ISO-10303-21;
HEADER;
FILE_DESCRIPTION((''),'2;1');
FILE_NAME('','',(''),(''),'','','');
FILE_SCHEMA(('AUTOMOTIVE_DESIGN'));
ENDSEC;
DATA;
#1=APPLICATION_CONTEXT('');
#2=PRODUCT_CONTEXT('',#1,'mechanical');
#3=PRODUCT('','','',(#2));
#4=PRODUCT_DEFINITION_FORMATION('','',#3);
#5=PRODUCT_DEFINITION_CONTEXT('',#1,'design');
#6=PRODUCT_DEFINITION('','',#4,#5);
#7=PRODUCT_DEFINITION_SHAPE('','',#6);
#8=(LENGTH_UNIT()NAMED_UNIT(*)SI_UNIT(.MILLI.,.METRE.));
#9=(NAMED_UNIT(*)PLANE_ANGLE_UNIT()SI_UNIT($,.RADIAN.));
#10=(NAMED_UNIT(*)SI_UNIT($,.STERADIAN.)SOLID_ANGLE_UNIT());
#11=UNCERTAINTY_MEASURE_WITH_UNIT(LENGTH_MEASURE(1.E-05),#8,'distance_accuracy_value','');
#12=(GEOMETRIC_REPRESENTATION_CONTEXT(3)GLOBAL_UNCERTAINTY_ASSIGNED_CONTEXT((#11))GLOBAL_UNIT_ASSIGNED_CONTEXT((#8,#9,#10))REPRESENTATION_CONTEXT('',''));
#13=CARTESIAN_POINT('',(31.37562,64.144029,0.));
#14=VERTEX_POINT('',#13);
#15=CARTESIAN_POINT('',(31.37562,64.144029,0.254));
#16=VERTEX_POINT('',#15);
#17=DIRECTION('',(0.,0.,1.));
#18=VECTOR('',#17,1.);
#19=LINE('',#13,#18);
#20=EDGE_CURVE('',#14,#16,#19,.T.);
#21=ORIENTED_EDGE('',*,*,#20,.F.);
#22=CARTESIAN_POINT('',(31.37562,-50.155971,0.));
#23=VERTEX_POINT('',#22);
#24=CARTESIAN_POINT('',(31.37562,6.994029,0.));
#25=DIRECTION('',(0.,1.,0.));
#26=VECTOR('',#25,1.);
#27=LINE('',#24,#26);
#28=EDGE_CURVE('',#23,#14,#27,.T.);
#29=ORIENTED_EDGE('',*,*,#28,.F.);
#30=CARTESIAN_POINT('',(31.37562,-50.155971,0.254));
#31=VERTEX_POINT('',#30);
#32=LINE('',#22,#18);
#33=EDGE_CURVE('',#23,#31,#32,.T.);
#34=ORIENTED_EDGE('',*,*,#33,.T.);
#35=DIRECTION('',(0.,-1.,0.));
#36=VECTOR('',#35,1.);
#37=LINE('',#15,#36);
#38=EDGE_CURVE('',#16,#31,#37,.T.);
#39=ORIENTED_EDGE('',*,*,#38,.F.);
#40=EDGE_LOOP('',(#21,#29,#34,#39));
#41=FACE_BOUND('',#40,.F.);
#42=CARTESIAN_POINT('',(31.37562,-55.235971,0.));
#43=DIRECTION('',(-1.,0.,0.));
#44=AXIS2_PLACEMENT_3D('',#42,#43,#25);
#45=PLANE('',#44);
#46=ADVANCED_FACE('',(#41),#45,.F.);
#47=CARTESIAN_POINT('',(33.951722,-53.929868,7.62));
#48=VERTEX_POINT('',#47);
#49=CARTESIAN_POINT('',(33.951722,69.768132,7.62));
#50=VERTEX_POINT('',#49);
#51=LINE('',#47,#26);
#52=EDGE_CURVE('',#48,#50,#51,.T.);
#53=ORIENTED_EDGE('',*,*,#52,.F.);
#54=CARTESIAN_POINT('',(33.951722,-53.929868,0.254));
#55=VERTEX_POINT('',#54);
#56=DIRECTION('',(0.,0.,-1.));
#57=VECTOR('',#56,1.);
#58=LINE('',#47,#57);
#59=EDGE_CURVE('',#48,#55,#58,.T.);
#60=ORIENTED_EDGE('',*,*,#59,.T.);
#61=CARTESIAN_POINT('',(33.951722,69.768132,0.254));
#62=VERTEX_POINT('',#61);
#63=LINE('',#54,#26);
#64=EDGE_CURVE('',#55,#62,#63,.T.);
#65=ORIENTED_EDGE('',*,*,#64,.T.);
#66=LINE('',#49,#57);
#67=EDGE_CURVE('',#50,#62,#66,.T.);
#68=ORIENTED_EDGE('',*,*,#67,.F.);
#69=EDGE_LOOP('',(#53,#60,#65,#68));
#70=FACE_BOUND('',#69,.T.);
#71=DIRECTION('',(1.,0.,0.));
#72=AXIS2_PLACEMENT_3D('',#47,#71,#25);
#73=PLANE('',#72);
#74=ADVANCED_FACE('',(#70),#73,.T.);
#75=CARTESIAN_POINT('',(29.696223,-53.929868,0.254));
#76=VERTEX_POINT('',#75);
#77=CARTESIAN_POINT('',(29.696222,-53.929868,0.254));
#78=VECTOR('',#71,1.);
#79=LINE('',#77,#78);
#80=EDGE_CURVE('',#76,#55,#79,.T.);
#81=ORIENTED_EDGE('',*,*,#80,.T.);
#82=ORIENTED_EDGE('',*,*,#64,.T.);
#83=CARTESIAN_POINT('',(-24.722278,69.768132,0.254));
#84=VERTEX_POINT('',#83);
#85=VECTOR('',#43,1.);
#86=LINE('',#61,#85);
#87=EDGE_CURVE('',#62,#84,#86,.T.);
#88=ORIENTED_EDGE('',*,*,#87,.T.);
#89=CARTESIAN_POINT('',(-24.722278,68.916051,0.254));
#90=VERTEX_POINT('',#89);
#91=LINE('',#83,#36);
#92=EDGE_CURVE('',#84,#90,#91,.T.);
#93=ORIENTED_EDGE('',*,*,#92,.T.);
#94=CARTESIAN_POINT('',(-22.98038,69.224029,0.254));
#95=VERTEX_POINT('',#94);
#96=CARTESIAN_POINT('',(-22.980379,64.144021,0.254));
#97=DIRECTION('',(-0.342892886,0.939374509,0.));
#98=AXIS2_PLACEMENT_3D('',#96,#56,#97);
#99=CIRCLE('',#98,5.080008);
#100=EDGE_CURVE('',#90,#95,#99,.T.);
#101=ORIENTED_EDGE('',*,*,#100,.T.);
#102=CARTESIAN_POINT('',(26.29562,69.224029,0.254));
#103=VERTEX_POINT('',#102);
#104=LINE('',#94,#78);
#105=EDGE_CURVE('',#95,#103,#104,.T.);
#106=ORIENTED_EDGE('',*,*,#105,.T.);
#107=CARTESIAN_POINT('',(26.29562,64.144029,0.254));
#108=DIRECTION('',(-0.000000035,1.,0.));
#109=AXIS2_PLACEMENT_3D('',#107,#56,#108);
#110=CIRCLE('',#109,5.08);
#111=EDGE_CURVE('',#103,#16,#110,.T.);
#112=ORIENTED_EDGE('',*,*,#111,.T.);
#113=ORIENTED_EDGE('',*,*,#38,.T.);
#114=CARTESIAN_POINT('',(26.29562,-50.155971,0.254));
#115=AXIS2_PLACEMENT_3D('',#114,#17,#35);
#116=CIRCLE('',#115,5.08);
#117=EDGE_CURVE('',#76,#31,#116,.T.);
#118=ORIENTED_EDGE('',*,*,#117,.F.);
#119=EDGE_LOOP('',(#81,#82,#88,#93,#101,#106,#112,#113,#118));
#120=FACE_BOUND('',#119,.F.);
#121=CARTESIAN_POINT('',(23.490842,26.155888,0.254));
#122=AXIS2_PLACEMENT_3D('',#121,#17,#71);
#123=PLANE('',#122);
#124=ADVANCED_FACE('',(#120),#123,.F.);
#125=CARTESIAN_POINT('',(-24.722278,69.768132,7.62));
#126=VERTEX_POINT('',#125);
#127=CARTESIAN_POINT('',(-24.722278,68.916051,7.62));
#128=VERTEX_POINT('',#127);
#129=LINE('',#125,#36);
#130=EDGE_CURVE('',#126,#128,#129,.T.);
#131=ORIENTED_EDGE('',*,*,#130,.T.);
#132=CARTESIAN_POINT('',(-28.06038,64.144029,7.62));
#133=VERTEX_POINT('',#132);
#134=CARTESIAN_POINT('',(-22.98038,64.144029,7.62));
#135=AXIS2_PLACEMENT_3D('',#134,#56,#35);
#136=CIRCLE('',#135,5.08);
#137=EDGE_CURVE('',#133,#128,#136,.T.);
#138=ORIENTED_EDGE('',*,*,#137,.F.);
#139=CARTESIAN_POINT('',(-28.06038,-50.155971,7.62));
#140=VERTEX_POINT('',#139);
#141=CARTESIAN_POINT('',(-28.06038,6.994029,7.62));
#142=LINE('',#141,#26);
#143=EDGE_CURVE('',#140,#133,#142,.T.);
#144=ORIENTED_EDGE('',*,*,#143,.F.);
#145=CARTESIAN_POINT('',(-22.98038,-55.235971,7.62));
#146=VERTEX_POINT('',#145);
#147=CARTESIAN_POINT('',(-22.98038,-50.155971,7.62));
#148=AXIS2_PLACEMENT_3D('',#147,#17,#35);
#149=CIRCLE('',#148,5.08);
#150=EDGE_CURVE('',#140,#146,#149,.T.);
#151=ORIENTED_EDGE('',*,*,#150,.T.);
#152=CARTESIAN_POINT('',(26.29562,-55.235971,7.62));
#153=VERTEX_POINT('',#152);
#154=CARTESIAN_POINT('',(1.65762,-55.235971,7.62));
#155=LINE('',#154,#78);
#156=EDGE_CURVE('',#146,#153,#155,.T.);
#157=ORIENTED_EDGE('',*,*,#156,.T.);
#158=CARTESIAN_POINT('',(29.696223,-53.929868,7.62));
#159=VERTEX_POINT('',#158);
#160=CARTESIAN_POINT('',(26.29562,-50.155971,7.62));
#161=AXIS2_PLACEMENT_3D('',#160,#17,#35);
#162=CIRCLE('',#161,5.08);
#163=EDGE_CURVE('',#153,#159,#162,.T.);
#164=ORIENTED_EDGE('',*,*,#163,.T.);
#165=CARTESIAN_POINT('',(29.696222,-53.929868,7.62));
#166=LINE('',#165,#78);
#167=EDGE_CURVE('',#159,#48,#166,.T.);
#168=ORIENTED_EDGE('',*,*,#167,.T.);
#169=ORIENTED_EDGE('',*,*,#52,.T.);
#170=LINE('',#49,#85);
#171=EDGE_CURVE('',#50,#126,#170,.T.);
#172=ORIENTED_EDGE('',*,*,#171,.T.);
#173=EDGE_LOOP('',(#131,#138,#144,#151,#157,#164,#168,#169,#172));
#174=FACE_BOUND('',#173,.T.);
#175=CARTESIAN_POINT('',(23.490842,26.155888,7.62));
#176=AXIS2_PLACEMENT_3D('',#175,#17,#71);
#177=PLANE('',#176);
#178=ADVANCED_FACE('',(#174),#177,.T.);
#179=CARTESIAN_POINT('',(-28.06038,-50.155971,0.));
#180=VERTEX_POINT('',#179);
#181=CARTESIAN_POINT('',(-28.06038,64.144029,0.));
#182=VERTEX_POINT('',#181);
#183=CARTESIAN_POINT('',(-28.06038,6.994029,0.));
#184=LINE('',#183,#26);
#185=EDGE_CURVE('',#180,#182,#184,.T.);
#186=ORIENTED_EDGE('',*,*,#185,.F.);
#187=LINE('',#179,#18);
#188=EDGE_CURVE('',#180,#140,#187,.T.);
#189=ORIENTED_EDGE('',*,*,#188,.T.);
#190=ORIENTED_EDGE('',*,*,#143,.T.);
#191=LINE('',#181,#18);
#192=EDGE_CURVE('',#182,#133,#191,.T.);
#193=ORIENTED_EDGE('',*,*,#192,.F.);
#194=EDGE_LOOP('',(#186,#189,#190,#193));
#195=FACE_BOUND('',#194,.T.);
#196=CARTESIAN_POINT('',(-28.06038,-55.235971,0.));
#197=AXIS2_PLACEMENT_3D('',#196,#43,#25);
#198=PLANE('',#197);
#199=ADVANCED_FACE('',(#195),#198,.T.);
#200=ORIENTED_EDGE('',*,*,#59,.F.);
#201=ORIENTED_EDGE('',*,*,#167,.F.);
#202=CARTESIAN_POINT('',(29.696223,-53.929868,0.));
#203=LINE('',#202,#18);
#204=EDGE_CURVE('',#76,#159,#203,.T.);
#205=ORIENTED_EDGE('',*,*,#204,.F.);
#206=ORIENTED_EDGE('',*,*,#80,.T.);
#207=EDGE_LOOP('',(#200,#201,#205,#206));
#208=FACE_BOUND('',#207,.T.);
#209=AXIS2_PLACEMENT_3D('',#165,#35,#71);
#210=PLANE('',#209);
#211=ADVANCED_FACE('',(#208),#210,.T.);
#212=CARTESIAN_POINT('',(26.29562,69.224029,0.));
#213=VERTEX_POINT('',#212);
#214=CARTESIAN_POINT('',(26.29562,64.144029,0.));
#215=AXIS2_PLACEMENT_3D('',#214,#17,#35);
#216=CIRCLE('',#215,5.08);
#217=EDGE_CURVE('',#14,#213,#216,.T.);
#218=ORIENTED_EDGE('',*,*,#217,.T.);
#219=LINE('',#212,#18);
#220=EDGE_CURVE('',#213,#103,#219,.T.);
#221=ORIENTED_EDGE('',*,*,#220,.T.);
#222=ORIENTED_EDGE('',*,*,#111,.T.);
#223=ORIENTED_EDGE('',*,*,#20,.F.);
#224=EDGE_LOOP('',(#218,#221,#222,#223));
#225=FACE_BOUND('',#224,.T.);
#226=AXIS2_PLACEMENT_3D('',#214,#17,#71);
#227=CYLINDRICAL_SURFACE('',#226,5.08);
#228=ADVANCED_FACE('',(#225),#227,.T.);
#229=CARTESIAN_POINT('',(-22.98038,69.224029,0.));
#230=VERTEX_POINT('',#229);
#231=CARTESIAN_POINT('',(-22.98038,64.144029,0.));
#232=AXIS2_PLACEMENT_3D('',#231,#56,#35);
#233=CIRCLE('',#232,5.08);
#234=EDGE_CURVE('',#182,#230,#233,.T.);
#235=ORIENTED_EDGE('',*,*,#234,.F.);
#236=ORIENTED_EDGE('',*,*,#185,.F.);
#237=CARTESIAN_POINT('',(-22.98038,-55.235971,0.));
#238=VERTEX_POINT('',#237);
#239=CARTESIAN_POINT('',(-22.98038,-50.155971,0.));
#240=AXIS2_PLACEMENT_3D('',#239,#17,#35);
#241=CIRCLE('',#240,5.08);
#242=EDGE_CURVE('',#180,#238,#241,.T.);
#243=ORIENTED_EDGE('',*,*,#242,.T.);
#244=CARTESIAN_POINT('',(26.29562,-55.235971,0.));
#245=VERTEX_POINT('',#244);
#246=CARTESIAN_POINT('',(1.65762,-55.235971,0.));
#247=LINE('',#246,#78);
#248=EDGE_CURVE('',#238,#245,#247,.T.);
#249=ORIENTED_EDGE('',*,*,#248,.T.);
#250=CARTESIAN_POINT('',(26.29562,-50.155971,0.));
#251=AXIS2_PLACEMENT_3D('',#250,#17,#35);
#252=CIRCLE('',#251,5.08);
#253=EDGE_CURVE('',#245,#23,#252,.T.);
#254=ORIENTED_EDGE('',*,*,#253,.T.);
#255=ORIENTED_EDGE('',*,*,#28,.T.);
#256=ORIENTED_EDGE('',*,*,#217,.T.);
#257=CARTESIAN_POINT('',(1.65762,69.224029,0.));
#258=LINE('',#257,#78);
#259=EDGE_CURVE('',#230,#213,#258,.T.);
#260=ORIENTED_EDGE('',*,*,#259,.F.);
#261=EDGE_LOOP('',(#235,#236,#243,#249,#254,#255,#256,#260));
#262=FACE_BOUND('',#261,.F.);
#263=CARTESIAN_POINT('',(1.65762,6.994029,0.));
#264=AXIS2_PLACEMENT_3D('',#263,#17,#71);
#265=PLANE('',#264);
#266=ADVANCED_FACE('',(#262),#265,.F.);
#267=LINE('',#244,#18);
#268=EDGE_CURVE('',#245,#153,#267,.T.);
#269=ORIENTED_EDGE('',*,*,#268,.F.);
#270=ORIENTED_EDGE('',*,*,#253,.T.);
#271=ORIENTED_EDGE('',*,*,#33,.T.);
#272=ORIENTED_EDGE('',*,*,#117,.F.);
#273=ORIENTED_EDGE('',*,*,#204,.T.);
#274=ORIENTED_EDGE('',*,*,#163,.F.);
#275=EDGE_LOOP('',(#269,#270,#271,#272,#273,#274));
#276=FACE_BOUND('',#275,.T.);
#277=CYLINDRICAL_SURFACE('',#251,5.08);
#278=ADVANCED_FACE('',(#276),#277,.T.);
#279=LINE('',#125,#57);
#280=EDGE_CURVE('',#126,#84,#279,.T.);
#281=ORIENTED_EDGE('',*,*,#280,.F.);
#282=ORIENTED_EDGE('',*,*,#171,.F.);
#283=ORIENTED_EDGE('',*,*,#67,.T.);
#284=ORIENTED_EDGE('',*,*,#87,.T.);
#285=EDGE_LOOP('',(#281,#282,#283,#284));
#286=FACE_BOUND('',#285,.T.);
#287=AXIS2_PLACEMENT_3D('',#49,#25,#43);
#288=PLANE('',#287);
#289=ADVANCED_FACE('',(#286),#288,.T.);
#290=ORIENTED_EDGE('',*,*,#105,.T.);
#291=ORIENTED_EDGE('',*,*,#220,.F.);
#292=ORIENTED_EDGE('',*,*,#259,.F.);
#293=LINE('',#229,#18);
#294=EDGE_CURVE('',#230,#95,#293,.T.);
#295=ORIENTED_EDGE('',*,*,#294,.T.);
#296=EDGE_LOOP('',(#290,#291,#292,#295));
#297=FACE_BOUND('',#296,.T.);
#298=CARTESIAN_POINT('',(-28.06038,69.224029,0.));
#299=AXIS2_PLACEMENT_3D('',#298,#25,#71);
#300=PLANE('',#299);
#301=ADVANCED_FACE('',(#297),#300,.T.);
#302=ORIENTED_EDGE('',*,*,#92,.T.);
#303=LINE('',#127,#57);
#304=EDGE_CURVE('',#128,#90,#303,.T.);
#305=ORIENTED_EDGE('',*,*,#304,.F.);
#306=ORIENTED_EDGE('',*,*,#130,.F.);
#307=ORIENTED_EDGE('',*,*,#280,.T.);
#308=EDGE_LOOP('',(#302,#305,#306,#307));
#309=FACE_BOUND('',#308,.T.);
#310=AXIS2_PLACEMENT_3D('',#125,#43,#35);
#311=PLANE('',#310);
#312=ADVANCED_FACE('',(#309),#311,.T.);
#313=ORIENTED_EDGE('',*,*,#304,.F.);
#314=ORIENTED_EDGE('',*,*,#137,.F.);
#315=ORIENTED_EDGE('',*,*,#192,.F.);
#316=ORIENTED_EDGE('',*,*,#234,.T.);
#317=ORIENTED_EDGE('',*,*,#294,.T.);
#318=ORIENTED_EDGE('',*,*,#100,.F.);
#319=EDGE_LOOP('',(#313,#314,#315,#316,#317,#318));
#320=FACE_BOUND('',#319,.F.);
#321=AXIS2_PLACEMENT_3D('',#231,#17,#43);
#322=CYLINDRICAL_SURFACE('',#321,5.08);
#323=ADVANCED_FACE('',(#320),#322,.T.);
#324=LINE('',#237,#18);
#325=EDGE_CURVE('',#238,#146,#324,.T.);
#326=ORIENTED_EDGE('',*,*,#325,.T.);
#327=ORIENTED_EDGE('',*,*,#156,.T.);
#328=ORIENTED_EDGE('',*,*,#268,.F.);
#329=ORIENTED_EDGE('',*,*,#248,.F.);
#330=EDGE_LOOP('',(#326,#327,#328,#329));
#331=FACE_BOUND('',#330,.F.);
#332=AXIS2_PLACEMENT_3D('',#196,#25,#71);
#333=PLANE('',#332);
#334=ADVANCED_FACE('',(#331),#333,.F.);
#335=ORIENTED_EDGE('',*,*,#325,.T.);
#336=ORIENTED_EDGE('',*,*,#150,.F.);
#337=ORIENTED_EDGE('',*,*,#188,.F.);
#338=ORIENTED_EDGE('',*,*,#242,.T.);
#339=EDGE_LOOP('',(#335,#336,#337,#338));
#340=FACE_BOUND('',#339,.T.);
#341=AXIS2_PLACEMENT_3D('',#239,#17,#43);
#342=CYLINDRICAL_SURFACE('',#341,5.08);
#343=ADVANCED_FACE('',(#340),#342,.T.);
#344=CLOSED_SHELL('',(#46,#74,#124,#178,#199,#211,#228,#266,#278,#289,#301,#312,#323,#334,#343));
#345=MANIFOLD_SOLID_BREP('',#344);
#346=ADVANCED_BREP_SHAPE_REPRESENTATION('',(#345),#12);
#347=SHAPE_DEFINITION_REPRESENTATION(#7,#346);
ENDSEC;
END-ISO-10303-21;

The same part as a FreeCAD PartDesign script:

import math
import FreeCAD as App
import Part
import Sketcher

V = App.Vector
Q = App.Units.Quantity


def edges_at(feature, points):
    """Names of the edges that pass closest to the given points."""
    edges = feature.Shape.Edges
    near = lambda p: min(range(len(edges)), key=lambda i: edges[i].distToShape(Part.Vertex(*p))[0])
    return sorted({f"Edge{near(p) + 1}" for p in points})


def add_polygon(sketch, points):
    """Adds a closed chain of lines whose ends are joined by coincident constraints."""
    first, n = sketch.GeometryCount, len(points)
    for a, b in zip(points, points[1:] + points[:1]):
        sketch.addGeometry(Part.LineSegment(App.Vector(*a, 0), App.Vector(*b, 0)), False)
    for i in range(n):
        sketch.addConstraint(Sketcher.Constraint("Coincident", first + i, 2, first + (i + 1) % n, 1))

doc = App.newDocument("Part")
body = doc.addObject("PartDesign::Body", "Body")

# Sketch on XY plane
sketch1 = body.newObject("Sketcher::SketchObject", "Sketch")
sketch1.AttachmentSupport = (doc.getObject("XY_Plane"), [""])
sketch1.MapMode = "FlatFace"
add_polygon(sketch1, [(-28.06038, 69.224029), (-28.06038, -55.235971), (31.37562, -55.235971), (31.37562, 69.224029)])  # lines 0-3
sketch1.addConstraint(Sketcher.Constraint("Vertical", 0))
sketch1.addConstraint(Sketcher.Constraint("Horizontal", 1))
sketch1.addConstraint(Sketcher.Constraint("Vertical", 2))
sketch1.addConstraint(Sketcher.Constraint("Horizontal", 3))
sketch1.addConstraint(Sketcher.Constraint("DistanceY", 0, 2, 0, 1, Q("4.9 in")))
sketch1.addConstraint(Sketcher.Constraint("DistanceX", 1, 1, 1, 2, Q("2.34 in")))
sketch1.addConstraint(Sketcher.Constraint("DistanceX", 0, 2, -1, 1, 28.06038))
sketch1.addConstraint(Sketcher.Constraint("DistanceY", 0, 2, -1, 1, 55.235971))
pad1 = body.newObject("PartDesign::Pad", "Pad")
pad1.Profile = sketch1
pad1.Length = Q("0.3 in")
doc.recompute()

fillet = body.newObject("PartDesign::Fillet", "Fillet")
fillet.Base = (pad1, edges_at(pad1, [
    (31.376, -55.236, 3.81),
    (-28.06, -55.236, 3.81),
    (31.376, 69.224, 3.81),
    (-28.06, 69.224, 3.81),
]))
fillet.Radius = Q("0.2 in")

# Sketch on XY plane
sketch2 = body.newObject("Sketcher::SketchObject", "Sketch001")
sketch2.AttachmentSupport = (doc.getObject("XY_Plane"), [""])
sketch2.MapMode = "FlatFace"
sketch2.AttachmentOffset = App.Placement(V(0, 0, 0.3 * 25.4), App.Rotation())
sketch2.addGeometry(Part.LineSegment(V(33.951722, 69.768132, 0), V(-24.722278, 69.768132, 0)), False)
sketch2.addGeometry(Part.LineSegment(V(-24.722278, 69.768132, 0), V(-24.722278, 68.916051, 0)), False)
sketch2.addGeometry(Part.ArcOfCircle(Part.Circle(V(-22.980379, 64.144021, 0), V(0, 0, 1), 5.080008), math.radians(90.000008), math.radians(110.053223)), False)
sketch2.addGeometry(Part.LineSegment(V(-22.98038, 69.224029, 0), V(26.29562, 69.224029, 0)), False)
sketch2.addGeometry(Part.ArcOfCircle(Part.Circle(V(26.29562, 64.144029, 0), V(0, 0, 1), 5.08), math.radians(-0.000002), math.radians(90.000002)), False)
sketch2.addGeometry(Part.LineSegment(V(31.37562, 64.144029, 0), V(31.37562, -50.155971, 0)), False)
sketch2.addGeometry(Part.ArcOfCircle(Part.Circle(V(26.295623, -50.155971, 0), V(0, 0, 1), 5.079997), math.radians(-47.978483), math.radians(0.000004)), False)
sketch2.addGeometry(Part.LineSegment(V(29.696222, -53.929868, 0), V(33.951722, -53.929868, 0)), False)
sketch2.addGeometry(Part.LineSegment(V(33.951722, -53.929868, 0), V(33.951722, 69.768132, 0)), False)
sketch2.addConstraint(Sketcher.Constraint("Coincident", 0, 2, 1, 1))
sketch2.addConstraint(Sketcher.Constraint("Coincident", 1, 2, 2, 2))
sketch2.addConstraint(Sketcher.Constraint("Tangent", 2, 1, 3, 1))
sketch2.addConstraint(Sketcher.Constraint("Tangent", 3, 2, 4, 2))
sketch2.addConstraint(Sketcher.Constraint("Tangent", 4, 1, 5, 1))
sketch2.addConstraint(Sketcher.Constraint("Tangent", 5, 2, 6, 2))
sketch2.addConstraint(Sketcher.Constraint("Coincident", 6, 1, 7, 1))
sketch2.addConstraint(Sketcher.Constraint("Coincident", 7, 2, 8, 1))
sketch2.addConstraint(Sketcher.Constraint("Coincident", 8, 2, 0, 1))
sketch2.addConstraint(Sketcher.Constraint("Horizontal", 0))
sketch2.addConstraint(Sketcher.Constraint("Vertical", 1))
sketch2.addConstraint(Sketcher.Constraint("Horizontal", 3))
sketch2.addConstraint(Sketcher.Constraint("Vertical", 5))
sketch2.addConstraint(Sketcher.Constraint("Horizontal", 7))
sketch2.addConstraint(Sketcher.Constraint("Vertical", 8))
sketch2.addConstraint(Sketcher.Constraint("Radius", 4, Q("0.2 in")))
sketch2.addConstraint(Sketcher.Constraint("Radius", 6, Q("0.1999999 in")))
sketch2.addConstraint(Sketcher.Constraint("DistanceY", 5, 2, 5, 1, Q("4.5 in")))
sketch2.addConstraint(Sketcher.Constraint("DistanceX", 0, 2, 0, 1, Q("2.31 in")))
sketch2.addConstraint(Sketcher.Constraint("DistanceX", 3, 1, 3, 2, Q("1.94 in")))
sketch2.addConstraint(Sketcher.Constraint("DistanceY", 8, 1, 8, 2, Q("4.87 in")))
sketch2.addConstraint(Sketcher.Constraint("Radius", 2, 5.080008))
sketch2.addConstraint(Sketcher.Constraint("DistanceX", 7, 1, 7, 2, 4.2555))
sketch2.addConstraint(Sketcher.Constraint("DistanceY", 1, 2, 1, 1, 0.852081))
sketch2.addConstraint(Sketcher.Constraint("DistanceX", 2, 3, -1, 1, 22.980379))
sketch2.addConstraint(Sketcher.Constraint("DistanceY", -1, 1, 2, 3, 64.144021))
pad2 = body.newObject("PartDesign::Pad", "Pad001")
pad2.Profile = sketch2
pad2.Length = Q("0.29 in")
pad2.Reversed = True

doc.recompute()
